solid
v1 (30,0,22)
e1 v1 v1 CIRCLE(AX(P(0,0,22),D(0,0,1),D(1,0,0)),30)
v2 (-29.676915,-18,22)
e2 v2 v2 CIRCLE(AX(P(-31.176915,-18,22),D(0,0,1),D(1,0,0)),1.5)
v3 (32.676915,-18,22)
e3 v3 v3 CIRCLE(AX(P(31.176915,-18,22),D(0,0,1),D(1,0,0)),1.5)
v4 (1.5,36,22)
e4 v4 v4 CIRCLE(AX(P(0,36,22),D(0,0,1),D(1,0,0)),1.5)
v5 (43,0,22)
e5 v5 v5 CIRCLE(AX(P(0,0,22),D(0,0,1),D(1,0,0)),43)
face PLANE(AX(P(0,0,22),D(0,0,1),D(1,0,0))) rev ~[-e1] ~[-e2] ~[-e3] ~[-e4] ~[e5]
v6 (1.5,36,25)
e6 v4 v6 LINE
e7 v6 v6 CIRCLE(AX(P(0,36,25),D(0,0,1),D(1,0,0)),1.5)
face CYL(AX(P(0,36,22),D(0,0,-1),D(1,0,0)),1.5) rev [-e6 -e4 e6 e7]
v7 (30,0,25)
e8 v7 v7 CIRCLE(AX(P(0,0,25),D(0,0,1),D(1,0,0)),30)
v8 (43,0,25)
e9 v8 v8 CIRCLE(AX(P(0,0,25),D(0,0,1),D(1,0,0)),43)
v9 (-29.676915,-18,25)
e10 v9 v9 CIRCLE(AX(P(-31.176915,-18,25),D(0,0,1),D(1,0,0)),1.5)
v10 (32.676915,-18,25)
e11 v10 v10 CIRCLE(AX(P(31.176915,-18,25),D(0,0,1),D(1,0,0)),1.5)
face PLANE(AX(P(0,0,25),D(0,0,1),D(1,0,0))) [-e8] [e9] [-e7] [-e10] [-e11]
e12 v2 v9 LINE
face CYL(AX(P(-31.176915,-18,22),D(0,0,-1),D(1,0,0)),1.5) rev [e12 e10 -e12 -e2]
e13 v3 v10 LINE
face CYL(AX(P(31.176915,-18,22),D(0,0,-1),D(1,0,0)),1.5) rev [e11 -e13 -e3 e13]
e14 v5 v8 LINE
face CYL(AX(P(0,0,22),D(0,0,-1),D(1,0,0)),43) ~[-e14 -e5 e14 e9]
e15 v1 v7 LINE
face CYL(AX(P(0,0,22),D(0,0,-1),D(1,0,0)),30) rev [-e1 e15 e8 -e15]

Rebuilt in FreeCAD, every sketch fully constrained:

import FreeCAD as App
import Part
import Sketcher

V = App.Vector
Q = App.Units.Quantity

doc = App.newDocument("Part")
body = doc.addObject("PartDesign::Body", "Body")

# Sketch on XY plane
sketch1 = doc.addObject("Sketcher::SketchObject", "Sketch")
body.addObject(sketch1)
sketch1.AttachmentSupport = (doc.XY_Plane, [""])
sketch1.MapMode = "FlatFace"
sketch1.AttachmentOffset = App.Placement(V(0, 0, 22), App.Rotation())
sketch1.addGeometry([
    Part.Circle(V(0, 0, 0), V(0, 0, 1), 43),  # 0
    Part.Circle(V(-31.176915, -18, 0), V(0, 0, 1), 1.5),  # 1
    Part.Circle(V(31.176915, -18, 0), V(0, 0, 1), 1.5),  # 2
    Part.Circle(V(0, 0, 0), V(0, 0, 1), 30),  # 3
    Part.Circle(V(0, 36, 0), V(0, 0, 1), 1.5),  # 4
], False)
sketch1.addConstraint([
    Sketcher.Constraint("Coincident", 0, 3, -1, 1),
    Sketcher.Constraint("Coincident", 3, 3, -1, 1),
    Sketcher.Constraint("Equal", 1, 2),
    Sketcher.Constraint("Equal", 2, 4),
    Sketcher.Constraint("Symmetric", 1, 3, 2, 3, -2),
    Sketcher.Constraint("PointOnObject", 4, 3, -2),
    Sketcher.Constraint("Diameter", 0, Q("86 mm")),
    Sketcher.Constraint("Diameter", 1, Q("3 mm")),
    Sketcher.Constraint("Diameter", 3, Q("60 mm")),
    Sketcher.Constraint("DistanceY", 1, 3, -1, 1, Q("18 mm")),
    Sketcher.Constraint("DistanceY", -1, 1, 4, 3, Q("36 mm")),
    Sketcher.Constraint("DistanceX", 1, 3, 2, 3, Q("62.35383 mm")),
])
pad1 = doc.addObject("PartDesign::Pad", "Pad")
body.addObject(pad1)
pad1.Profile = sketch1
pad1.Length = 3

doc.recompute()
